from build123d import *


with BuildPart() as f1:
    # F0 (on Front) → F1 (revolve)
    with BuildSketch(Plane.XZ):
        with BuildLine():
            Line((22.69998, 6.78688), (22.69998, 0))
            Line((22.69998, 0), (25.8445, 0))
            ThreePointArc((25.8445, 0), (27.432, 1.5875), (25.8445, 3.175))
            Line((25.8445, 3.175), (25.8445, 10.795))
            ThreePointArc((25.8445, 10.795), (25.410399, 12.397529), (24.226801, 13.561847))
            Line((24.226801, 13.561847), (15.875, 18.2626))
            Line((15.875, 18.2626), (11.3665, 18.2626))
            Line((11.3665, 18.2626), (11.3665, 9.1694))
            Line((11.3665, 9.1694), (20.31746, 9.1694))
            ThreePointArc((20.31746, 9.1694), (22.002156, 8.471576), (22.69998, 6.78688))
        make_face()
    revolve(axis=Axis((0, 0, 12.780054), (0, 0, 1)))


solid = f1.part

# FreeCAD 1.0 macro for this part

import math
import FreeCAD as App
import Part
import Sketcher
from FreeCAD import Vector
Q = App.Units.Quantity

doc = App.newDocument("Part")
params = doc.addObject("Spreadsheet::Sheet", "Params")
for row, (alias, value) in enumerate([
    ("sketch1_height", "0.3 in"),
    ("sketch1_radius", "0.0625 in"),
    ("sketch1_radius2", "0.125 in"),
    ("sketch1_height2", "0.358 in"),
    ("revolution_angle", "360 deg"),
], start=1):
    params.set(f"A{row}", alias)
    params.set(f"B{row}", "=" + value)
    params.setAlias(f"B{row}", alias)

body = doc.addObject("PartDesign::Body", "Body")

# Sketch on XZ plane
sketch1 = body.newObject("Sketcher::SketchObject", "Sketch")
sketch1.AttachmentSupport = (doc.getObject("XZ_Plane"), [""])
sketch1.MapMode = "FlatFace"
sketch1.addGeometry(Part.LineSegment(Vector(22.7, 6.8, 0), Vector(22.7, 0, 0)), False)
sketch1.addGeometry(Part.LineSegment(Vector(22.7, 0, 0), Vector(25.8, 0, 0)), False)
sketch1.addGeometry(Part.ArcOfCircle(Part.Circle(Vector(25.8, 1.6, 0), Vector(0, 0, 1), 1.6), math.radians(-90), math.radians(90)), False)
sketch1.addGeometry(Part.LineSegment(Vector(25.8, 3.2, 0), Vector(25.8, 10.8, 0)), False)
sketch1.addGeometry(Part.ArcOfCircle(Part.Circle(Vector(22.7, 10.8, 0), Vector(0, 0, 1), 3.2), math.radians(0), math.radians(61)), False)
sketch1.addGeometry(Part.LineSegment(Vector(24.2, 13.6, 0), Vector(15.9, 18.3, 0)), False)
sketch1.addGeometry(Part.LineSegment(Vector(15.9, 18.3, 0), Vector(11.4, 18.3, 0)), False)
sketch1.addGeometry(Part.LineSegment(Vector(11.4, 18.3, 0), Vector(11.4, 9.2, 0)), False)
sketch1.addGeometry(Part.LineSegment(Vector(11.4, 9.2, 0), Vector(20.3, 9.2, 0)), False)
sketch1.addGeometry(Part.ArcOfCircle(Part.Circle(Vector(20.3, 6.8, 0), Vector(0, 0, 1), 2.4), math.radians(0), math.radians(90)), False)
sketch1.addConstraint(Sketcher.Constraint("Coincident", 0, 2, 1, 1))
sketch1.addConstraint(Sketcher.Constraint("Tangent", 1, 2, 2, 1))
sketch1.addConstraint(Sketcher.Constraint("Coincident", 2, 2, 3, 1))
sketch1.addConstraint(Sketcher.Constraint("Tangent", 3, 2, 4, 1))
sketch1.addConstraint(Sketcher.Constraint("Tangent", 4, 2, 5, 1))
sketch1.addConstraint(Sketcher.Constraint("Coincident", 5, 2, 6, 1))
sketch1.addConstraint(Sketcher.Constraint("Coincident", 6, 2, 7, 1))
sketch1.addConstraint(Sketcher.Constraint("Coincident", 7, 2, 8, 1))
sketch1.addConstraint(Sketcher.Constraint("Tangent", 8, 2, 9, 2))
sketch1.addConstraint(Sketcher.Constraint("Tangent", 9, 1, 0, 1))
sketch1.addConstraint(Sketcher.Constraint("Vertical", 0))
sketch1.addConstraint(Sketcher.Constraint("Horizontal", 1))
sketch1.addConstraint(Sketcher.Constraint("Vertical", 3))
sketch1.addConstraint(Sketcher.Constraint("Horizontal", 6))
sketch1.addConstraint(Sketcher.Constraint("Vertical", 7))
sketch1.addConstraint(Sketcher.Constraint("Horizontal", 8))
sketch1.addConstraint(Sketcher.Constraint("PointOnObject", 0, 2, -1))
sketch1.addConstraint(Sketcher.Constraint("Vertical", 1, 2, 2, 2))
sketch1.addConstraint(Sketcher.Constraint("DistanceY", 3, 1, 3, 2, Q("0.3 in")))
sketch1.addConstraint(Sketcher.Constraint("Radius", 2, Q("0.0625 in")))
sketch1.addConstraint(Sketcher.Constraint("Radius", 4, Q("0.125 in")))
sketch1.addConstraint(Sketcher.Constraint("Radius", 9, Q("0.0938 in")))
sketch1.addConstraint(Sketcher.Constraint("DistanceY", 7, 2, 7, 1, Q("0.358 in")))
sketch1.addConstraint(Sketcher.Constraint("DistanceX", 6, 2, 3, 2, Q("0.57 in")))
sketch1.addConstraint(Sketcher.Constraint("DistanceX", 1, 1, 1, 2, Q("0.1238 in")))
sketch1.addConstraint(Sketcher.Constraint("DistanceX", 6, 2, 6, 1, Q("0.1775 in")))
sketch1.addConstraint(Sketcher.Constraint("DistanceY", 0, 2, 0, 1, Q("0.2672 in")))
sketch1.addConstraint(Sketcher.Constraint("DistanceX", -1, 1, 5, 2, Q("0.625 in")))
sketch1.setExpression("Constraints[18]", "Params.sketch1_height")
sketch1.setExpression("Constraints[19]", "Params.sketch1_radius")
sketch1.setExpression("Constraints[20]", "Params.sketch1_radius2")
sketch1.setExpression("Constraints[22]", "Params.sketch1_height2")
revolution = body.newObject("PartDesign::Revolution", "Revolution")
revolution.Profile = sketch1
revolution.ReferenceAxis = (sketch1, ["V_Axis"])
revolution.setExpression("Angle", "Params.revolution_angle")

doc.recompute()
